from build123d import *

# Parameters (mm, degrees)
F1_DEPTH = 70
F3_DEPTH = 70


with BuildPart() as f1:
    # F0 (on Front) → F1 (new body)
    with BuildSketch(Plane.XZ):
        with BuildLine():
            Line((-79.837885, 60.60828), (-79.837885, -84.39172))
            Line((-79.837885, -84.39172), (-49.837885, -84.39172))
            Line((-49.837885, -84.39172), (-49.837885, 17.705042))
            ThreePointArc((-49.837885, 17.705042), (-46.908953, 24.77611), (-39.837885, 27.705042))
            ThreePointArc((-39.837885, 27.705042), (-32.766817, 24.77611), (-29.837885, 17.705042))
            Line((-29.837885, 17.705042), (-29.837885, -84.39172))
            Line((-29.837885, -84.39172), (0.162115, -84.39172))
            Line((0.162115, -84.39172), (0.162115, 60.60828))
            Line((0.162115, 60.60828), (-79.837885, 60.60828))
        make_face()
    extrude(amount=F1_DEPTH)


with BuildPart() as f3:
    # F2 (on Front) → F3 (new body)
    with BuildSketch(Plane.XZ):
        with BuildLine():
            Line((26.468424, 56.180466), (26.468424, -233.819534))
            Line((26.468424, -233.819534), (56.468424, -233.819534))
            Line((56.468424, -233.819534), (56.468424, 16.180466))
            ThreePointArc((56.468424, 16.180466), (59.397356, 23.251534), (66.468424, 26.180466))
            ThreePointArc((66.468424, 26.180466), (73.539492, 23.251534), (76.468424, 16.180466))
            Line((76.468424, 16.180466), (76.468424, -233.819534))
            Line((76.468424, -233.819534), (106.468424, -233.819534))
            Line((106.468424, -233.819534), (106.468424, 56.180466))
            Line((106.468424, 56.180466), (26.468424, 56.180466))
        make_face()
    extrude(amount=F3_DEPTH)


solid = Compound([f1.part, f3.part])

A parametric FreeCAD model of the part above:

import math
import FreeCAD as App
import Part
import Sketcher
from FreeCAD import Vector
Q = App.Units.Quantity

doc = App.newDocument("Part")
params = doc.addObject("Spreadsheet::Sheet", "Params")
for row, (alias, value) in enumerate([
    ("sketch1_radius", "9.999999 mm"),
    ("sketch1_width", "30 mm"),
    ("sketch1_height", "145 mm"),
    ("pad1_length", "70 mm"),
    ("sketch2_radius", "9.999999 mm"),
    ("sketch2_width", "30 mm"),
    ("sketch2_height", "290 mm"),
    ("sketch2_height2", "250 mm"),
    ("pad2_length", "70 mm"),
], start=1):
    params.set(f"A{row}", alias)
    params.set(f"B{row}", "=" + value)
    params.setAlias(f"B{row}", alias)

body = doc.addObject("PartDesign::Body", "Body")

sketch1 = doc.addObject("Sketcher::SketchObject", "Sketch")
body.addObject(sketch1)
sketch1.AttachmentSupport = (doc.XZ_Plane, [""])
sketch1.MapMode = "FlatFace"
sketch1.addGeometry(Part.LineSegment(Vector(-80, 61, 0), Vector(-80, -84, 0)), False)
sketch1.addGeometry(Part.LineSegment(Vector(-80, -84, 0), Vector(-50, -84, 0)), False)
sketch1.addGeometry(Part.LineSegment(Vector(-50, -84, 0), Vector(-50, 18, 0)), False)
sketch1.addGeometry(Part.ArcOfCircle(Part.Circle(Vector(-40, 18, 0), Vector(0, 0, 1), 10), math.radians(90), math.radians(180)), False)
sketch1.addGeometry(Part.ArcOfCircle(Part.Circle(Vector(-40, 18, 0), Vector(0, 0, 1), 10), math.radians(0), math.radians(90)), False)
sketch1.addGeometry(Part.LineSegment(Vector(-30, 18, 0), Vector(-30, -84, 0)), False)
sketch1.addGeometry(Part.LineSegment(Vector(-30, -84, 0), Vector(0, -84, 0)), False)
sketch1.addGeometry(Part.LineSegment(Vector(0, -84, 0), Vector(0, 61, 0)), False)
sketch1.addGeometry(Part.LineSegment(Vector(0, 61, 0), Vector(-80, 61, 0)), False)
sketch1.addConstraint(Sketcher.Constraint("Coincident", 0, 2, 1, 1))
sketch1.addConstraint(Sketcher.Constraint("Coincident", 1, 2, 2, 1))
sketch1.addConstraint(Sketcher.Constraint("Tangent", 2, 2, 3, 2))
sketch1.addConstraint(Sketcher.Constraint("Tangent", 3, 1, 4, 2))
sketch1.addConstraint(Sketcher.Constraint("Tangent", 4, 1, 5, 1))
sketch1.addConstraint(Sketcher.Constraint("Coincident", 5, 2, 6, 1))
sketch1.addConstraint(Sketcher.Constraint("Coincident", 6, 2, 7, 1))
sketch1.addConstraint(Sketcher.Constraint("Coincident", 7, 2, 8, 1))
sketch1.addConstraint(Sketcher.Constraint("Coincident", 8, 2, 0, 1))
sketch1.addConstraint(Sketcher.Constraint("Vertical", 0))
sketch1.addConstraint(Sketcher.Constraint("Horizontal", 1))
sketch1.addConstraint(Sketcher.Constraint("Vertical", 2))
sketch1.addConstraint(Sketcher.Constraint("Vertical", 5))
sketch1.addConstraint(Sketcher.Constraint("Horizontal", 6))
sketch1.addConstraint(Sketcher.Constraint("Vertical", 7))
sketch1.addConstraint(Sketcher.Constraint("Horizontal", 8))
sketch1.addConstraint(Sketcher.Constraint("Equal", 3, 4))
sketch1.addConstraint(Sketcher.Constraint("Horizontal", 1, 2, 5, 2))
sketch1.addConstraint(Sketcher.Constraint("Vertical", 4, 3, 3, 1))
sketch1.addConstraint(Sketcher.Constraint("Equal", 1, 6))
sketch1.addConstraint(Sketcher.Constraint("Radius", 3, Q("9.999999 mm")))
sketch1.addConstraint(Sketcher.Constraint("DistanceX", 1, 1, 1, 2, Q("30 mm")))
sketch1.addConstraint(Sketcher.Constraint("DistanceY", 0, 2, 0, 1, Q("145 mm")))
sketch1.addConstraint(Sketcher.Constraint("DistanceY", 2, 1, 2, 2, Q("102.096762 mm")))
sketch1.addConstraint(Sketcher.Constraint("DistanceY", 0, 2, -1, 1, Q("84.39172 mm")))
sketch1.addConstraint(Sketcher.Constraint("DistanceX", 3, 3, -1, 1, Q("39.837886 mm")))
sketch1.setExpression("Constraints[20]", "Params.sketch1_radius")
sketch1.setExpression("Constraints[21]", "Params.sketch1_width")
sketch1.setExpression("Constraints[22]", "Params.sketch1_height")
pad1 = doc.addObject("PartDesign::Pad", "Pad")
body.addObject(pad1)
pad1.Profile = sketch1
pad1.setExpression("Length", "Params.pad1_length")
body2 = doc.addObject("PartDesign::Body", "Body001")

sketch2 = doc.addObject("Sketcher::SketchObject", "Sketch001")
body2.addObject(sketch2)
sketch2.AttachmentSupport = (doc.getObject("XZ_Plane001"), [""])
sketch2.MapMode = "FlatFace"
sketch2.addGeometry(Part.LineSegment(Vector(26, 56, 0), Vector(26, -234, 0)), False)
sketch2.addGeometry(Part.LineSegment(Vector(26, -234, 0), Vector(56, -234, 0)), False)
sketch2.addGeometry(Part.LineSegment(Vector(56, -234, 0), Vector(56, 16, 0)), False)
sketch2.addGeometry(Part.ArcOfCircle(Part.Circle(Vector(66, 16, 0), Vector(0, 0, 1), 10), math.radians(90), math.radians(180)), False)
sketch2.addGeometry(Part.ArcOfCircle(Part.Circle(Vector(66, 16, 0), Vector(0, 0, 1), 10), math.radians(0), math.radians(90)), False)
sketch2.addGeometry(Part.LineSegment(Vector(76, 16, 0), Vector(76, -234, 0)), False)
sketch2.addGeometry(Part.LineSegment(Vector(76, -234, 0), Vector(106, -234, 0)), False)
sketch2.addGeometry(Part.LineSegment(Vector(106, -234, 0), Vector(106, 56, 0)), False)
sketch2.addGeometry(Part.LineSegment(Vector(106, 56, 0), Vector(26, 56, 0)), False)
sketch2.addConstraint(Sketcher.Constraint("Coincident", 0, 2, 1, 1))
sketch2.addConstraint(Sketcher.Constraint("Coincident", 1, 2, 2, 1))
sketch2.addConstraint(Sketcher.Constraint("Tangent", 2, 2, 3, 2))
sketch2.addConstraint(Sketcher.Constraint("Tangent", 3, 1, 4, 2))
sketch2.addConstraint(Sketcher.Constraint("Tangent", 4, 1, 5, 1))
sketch2.addConstraint(Sketcher.Constraint("Coincident", 5, 2, 6, 1))
sketch2.addConstraint(Sketcher.Constraint("Coincident", 6, 2, 7, 1))
sketch2.addConstraint(Sketcher.Constraint("Coincident", 7, 2, 8, 1))
sketch2.addConstraint(Sketcher.Constraint("Coincident", 8, 2, 0, 1))
sketch2.addConstraint(Sketcher.Constraint("Vertical", 0))
sketch2.addConstraint(Sketcher.Constraint("Horizontal", 1))
sketch2.addConstraint(Sketcher.Constraint("Vertical", 2))
sketch2.addConstraint(Sketcher.Constraint("Vertical", 5))
sketch2.addConstraint(Sketcher.Constraint("Horizontal", 6))
sketch2.addConstraint(Sketcher.Constraint("Vertical", 7))
sketch2.addConstraint(Sketcher.Constraint("Horizontal", 8))
sketch2.addConstraint(Sketcher.Constraint("Equal", 3, 4))
sketch2.addConstraint(Sketcher.Constraint("Horizontal", 1, 2, 5, 2))
sketch2.addConstraint(Sketcher.Constraint("Vertical", 4, 3, 3, 1))
sketch2.addConstraint(Sketcher.Constraint("Equal", 1, 6))
sketch2.addConstraint(Sketcher.Constraint("Radius", 3, Q("9.999999 mm")))
sketch2.addConstraint(Sketcher.Constraint("DistanceX", 1, 1, 1, 2, Q("30 mm")))
sketch2.addConstraint(Sketcher.Constraint("DistanceY", 0, 2, 0, 1, Q("290 mm")))
sketch2.addConstraint(Sketcher.Constraint("DistanceY", 2, 1, 2, 2, Q("250 mm")))
sketch2.addConstraint(Sketcher.Constraint("DistanceX", -1, 1, 3, 3, Q("66.468423 mm")))
sketch2.addConstraint(Sketcher.Constraint("DistanceY", -1, 1, 3, 3, Q("16.180467 mm")))
sketch2.setExpression("Constraints[20]", "Params.sketch2_radius")
sketch2.setExpression("Constraints[21]", "Params.sketch2_width")
sketch2.setExpression("Constraints[22]", "Params.sketch2_height")
sketch2.setExpression("Constraints[23]", "Params.sketch2_height2")
pad2 = doc.addObject("PartDesign::Pad", "Pad001")
body2.addObject(pad2)
pad2.Profile = sketch2
pad2.setExpression("Length", "Params.pad2_length")

doc.recompute()
